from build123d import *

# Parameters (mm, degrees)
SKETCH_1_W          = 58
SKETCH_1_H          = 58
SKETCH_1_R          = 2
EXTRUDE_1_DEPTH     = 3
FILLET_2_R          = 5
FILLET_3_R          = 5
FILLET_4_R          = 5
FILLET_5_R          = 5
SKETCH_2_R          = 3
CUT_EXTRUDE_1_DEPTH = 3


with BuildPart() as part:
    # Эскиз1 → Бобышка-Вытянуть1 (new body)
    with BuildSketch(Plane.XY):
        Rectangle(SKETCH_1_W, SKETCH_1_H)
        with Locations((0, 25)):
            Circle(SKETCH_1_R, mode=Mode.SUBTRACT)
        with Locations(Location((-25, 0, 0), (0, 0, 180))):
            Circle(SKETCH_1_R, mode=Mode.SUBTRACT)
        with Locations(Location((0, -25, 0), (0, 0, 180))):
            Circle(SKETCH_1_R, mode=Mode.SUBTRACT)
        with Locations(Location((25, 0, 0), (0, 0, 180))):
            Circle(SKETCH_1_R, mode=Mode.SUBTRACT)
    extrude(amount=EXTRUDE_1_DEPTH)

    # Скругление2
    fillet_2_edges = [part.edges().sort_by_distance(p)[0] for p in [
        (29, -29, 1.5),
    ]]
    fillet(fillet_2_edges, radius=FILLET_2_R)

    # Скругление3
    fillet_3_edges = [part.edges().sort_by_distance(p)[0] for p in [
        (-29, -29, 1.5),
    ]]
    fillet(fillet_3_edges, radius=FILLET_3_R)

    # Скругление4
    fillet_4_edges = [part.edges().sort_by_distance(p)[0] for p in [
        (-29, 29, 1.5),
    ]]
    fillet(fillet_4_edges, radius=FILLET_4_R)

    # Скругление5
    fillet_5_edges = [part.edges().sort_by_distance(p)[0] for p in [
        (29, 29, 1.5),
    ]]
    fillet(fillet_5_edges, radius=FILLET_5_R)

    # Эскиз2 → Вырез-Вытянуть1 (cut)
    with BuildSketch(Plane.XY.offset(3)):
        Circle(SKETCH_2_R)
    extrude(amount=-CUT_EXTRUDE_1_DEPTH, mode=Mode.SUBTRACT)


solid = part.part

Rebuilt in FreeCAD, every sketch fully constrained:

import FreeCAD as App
import Part
import Sketcher
from FreeCAD import Vector
Q = App.Units.Quantity


def edges_at(feature, points):
    """Names of the edges that pass closest to the given points."""
    edges = feature.Shape.Edges
    near = lambda p: min(range(len(edges)), key=lambda i: edges[i].distToShape(Part.Vertex(*p))[0])
    return sorted({f"Edge{near(p) + 1}" for p in points})

doc = App.newDocument("Part")
params = doc.addObject("Spreadsheet::Sheet", "Params")
for row, (alias, value) in enumerate([
    ("sketch1_diameter", "4 mm"),
    ("sketch1_width", "58 mm"),
    ("pad1_length", "3 mm"),
    ("fillet_radius", "5 mm"),
    ("fillet2_radius", "5 mm"),
    ("fillet3_radius", "5 mm"),
    ("fillet4_radius", "5 mm"),
    ("sketch2_diameter", "6 mm"),
    ("pocket1_length", "3 mm"),
], start=1):
    params.set(f"A{row}", alias)
    params.set(f"B{row}", "=" + value)
    params.setAlias(f"B{row}", alias)

body = doc.addObject("PartDesign::Body", "Body")

sketch1 = body.newObject("Sketcher::SketchObject", "Sketch")
sketch1.AttachmentSupport = (doc.getObject("XY_Plane"), [""])
sketch1.MapMode = "FlatFace"
sketch1.addGeometry([
    Part.LineSegment(Vector(-29, 29, 0), Vector(-29, -29, 0)),
    Part.LineSegment(Vector(-29, -29, 0), Vector(29, -29, 0)),
    Part.LineSegment(Vector(29, -29, 0), Vector(29, 29, 0)),
    Part.LineSegment(Vector(29, 29, 0), Vector(-29, 29, 0)),
    Part.Circle(Vector(0, -25, 0), Vector(0, 0, 1), 2),
    Part.Circle(Vector(-25, 0, 0), Vector(0, 0, 1), 2),
    Part.Circle(Vector(25, 0, 0), Vector(0, 0, 1), 2),
    Part.Circle(Vector(0, 25, 0), Vector(0, 0, 1), 2),
], False)
sketch1.addConstraint([
    Sketcher.Constraint("Coincident", 0, 2, 1, 1),
    Sketcher.Constraint("Coincident", 1, 2, 2, 1),
    Sketcher.Constraint("Coincident", 2, 2, 3, 1),
    Sketcher.Constraint("Coincident", 3, 2, 0, 1),
    Sketcher.Constraint("Vertical", 0),
    Sketcher.Constraint("Horizontal", 1),
    Sketcher.Constraint("Vertical", 2),
    Sketcher.Constraint("Horizontal", 3),
    Sketcher.Constraint("Equal", 4, 5),
    Sketcher.Constraint("Equal", 5, 6),
    Sketcher.Constraint("Equal", 6, 7),
    Sketcher.Constraint("Symmetric", 5, 3, 6, 3, -1, 1),
    Sketcher.Constraint("Symmetric", 4, 3, 7, 3, -1, 1),
    Sketcher.Constraint("Symmetric", 0, 2, 2, 2, -1, 1),
    Sketcher.Constraint("PointOnObject", 4, 3, -2),
    Sketcher.Constraint("PointOnObject", 5, 3, -1),
    Sketcher.Constraint("Equal", 3, 0),
    Sketcher.Constraint("Diameter", 4, Q("4 mm")),
    Sketcher.Constraint("DistanceX", 1, 1, 1, 2, Q("58 mm")),
    Sketcher.Constraint("DistanceY", 4, 3, -1, 1, Q("25 mm")),
    Sketcher.Constraint("DistanceX", 5, 3, -1, 1, Q("25 mm")),
])
sketch1.setExpression("Constraints[17]", "Params.sketch1_diameter")
sketch1.setExpression("Constraints[18]", "Params.sketch1_width")
pad1 = body.newObject("PartDesign::Pad", "Pad")
pad1.Profile = sketch1
pad1.setExpression("Length", "Params.pad1_length")
doc.recompute()

fillet = body.newObject("PartDesign::Fillet", "Fillet")
fillet.Base = (pad1, edges_at(pad1, [(29, -29, 1.5)]))
fillet.setExpression("Radius", "Params.fillet_radius")
doc.recompute()

fillet2 = body.newObject("PartDesign::Fillet", "Fillet001")
fillet2.Base = (fillet, edges_at(fillet, [(-29, -29, 1.5)]))
fillet2.setExpression("Radius", "Params.fillet2_radius")
doc.recompute()

fillet3 = body.newObject("PartDesign::Fillet", "Fillet002")
fillet3.Base = (fillet2, edges_at(fillet2, [(-29, 29, 1.5)]))
fillet3.setExpression("Radius", "Params.fillet3_radius")
doc.recompute()

fillet4 = body.newObject("PartDesign::Fillet", "Fillet003")
fillet4.Base = (fillet3, edges_at(fillet3, [(29, 29, 1.5)]))
fillet4.setExpression("Radius", "Params.fillet4_radius")

sketch2 = body.newObject("Sketcher::SketchObject", "Sketch001")
sketch2.AttachmentSupport = (doc.getObject("XY_Plane"), [""])
sketch2.MapMode = "FlatFace"
sketch2.AttachmentOffset = App.Placement(Vector(0, 0, 3), App.Rotation())
sketch2.addGeometry(Part.Circle(Vector(0, 0, 0), Vector(0, 0, 1), 3), False)
sketch2.addConstraint([
    Sketcher.Constraint("Coincident", 0, 3, -1, 1),
    Sketcher.Constraint("Diameter", 0, Q("6 mm")),
])
sketch2.setExpression("Constraints[1]", "Params.sketch2_diameter")
pocket1 = body.newObject("PartDesign::Pocket", "Pocket")
pocket1.Profile = sketch2
pocket1.setExpression("Length", "Params.pocket1_length")

doc.recompute()
